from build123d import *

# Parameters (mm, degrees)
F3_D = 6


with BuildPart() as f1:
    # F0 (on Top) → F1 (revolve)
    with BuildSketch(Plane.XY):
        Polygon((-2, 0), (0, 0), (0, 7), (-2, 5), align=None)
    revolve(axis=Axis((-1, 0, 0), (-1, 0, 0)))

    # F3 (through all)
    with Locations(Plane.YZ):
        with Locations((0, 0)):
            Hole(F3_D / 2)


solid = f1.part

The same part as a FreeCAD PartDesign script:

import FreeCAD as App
import Part
import Sketcher
Q = App.Units.Quantity


def add_polygon(sketch, points):
    """Adds a closed chain of lines whose ends are joined by coincident constraints."""
    first, n = sketch.GeometryCount, len(points)
    for a, b in zip(points, points[1:] + points[:1]):
        sketch.addGeometry(Part.LineSegment(App.Vector(*a, 0), App.Vector(*b, 0)), False)
    for i in range(n):
        sketch.addConstraint(Sketcher.Constraint("Coincident", first + i, 2, first + (i + 1) % n, 1))

doc = App.newDocument("Part")
body = doc.addObject("PartDesign::Body", "Body")

# Sketch on XY plane
sketch1 = body.newObject("Sketcher::SketchObject", "Sketch")
sketch1.AttachmentSupport = (doc.getObject("XY_Plane"), [""])
sketch1.MapMode = "FlatFace"
add_polygon(sketch1, [(-2, 0), (0, 0), (0, 7), (-2, 5)])  # lines 0-3
sketch1.addConstraint([
    Sketcher.Constraint("Horizontal", 0),
    Sketcher.Constraint("Vertical", 1),
    Sketcher.Constraint("Vertical", 3),
    Sketcher.Constraint("Coincident", 0, 2, -1, 1),
    Sketcher.Constraint("DistanceX", 0, 1, 0, 2, Q("2 mm")),
    Sketcher.Constraint("DistanceY", 1, 1, 1, 2, Q("7 mm")),
    Sketcher.Constraint("DistanceY", 3, 2, 3, 1, Q("5 mm")),
])
revolution = body.newObject("PartDesign::Revolution", "Revolution")
revolution.Profile = sketch1
revolution.ReferenceAxis = (sketch1, ["H_Axis"])
revolution.Angle = 360

# Sketch on YZ plane
sketch2 = body.newObject("Sketcher::SketchObject", "Sketch001")
sketch2.AttachmentSupport = (doc.getObject("YZ_Plane"), [""])
sketch2.MapMode = "FlatFace"
sketch2.addGeometry(Part.Circle(App.Vector(0, 0, 0), App.Vector(0, 0, 1), 3), False)
sketch2.addConstraint([
    Sketcher.Constraint("Coincident", 0, 3, -1, 1),
    Sketcher.Constraint("Diameter", 0, Q("6 mm")),
])
doc.recompute()
hole = body.newObject("PartDesign::Hole", "Hole")
hole.Profile = sketch2
hole.ThreadType = "None"
hole.Diameter = 6
hole.DepthType = "ThroughAll"

doc.recompute()
